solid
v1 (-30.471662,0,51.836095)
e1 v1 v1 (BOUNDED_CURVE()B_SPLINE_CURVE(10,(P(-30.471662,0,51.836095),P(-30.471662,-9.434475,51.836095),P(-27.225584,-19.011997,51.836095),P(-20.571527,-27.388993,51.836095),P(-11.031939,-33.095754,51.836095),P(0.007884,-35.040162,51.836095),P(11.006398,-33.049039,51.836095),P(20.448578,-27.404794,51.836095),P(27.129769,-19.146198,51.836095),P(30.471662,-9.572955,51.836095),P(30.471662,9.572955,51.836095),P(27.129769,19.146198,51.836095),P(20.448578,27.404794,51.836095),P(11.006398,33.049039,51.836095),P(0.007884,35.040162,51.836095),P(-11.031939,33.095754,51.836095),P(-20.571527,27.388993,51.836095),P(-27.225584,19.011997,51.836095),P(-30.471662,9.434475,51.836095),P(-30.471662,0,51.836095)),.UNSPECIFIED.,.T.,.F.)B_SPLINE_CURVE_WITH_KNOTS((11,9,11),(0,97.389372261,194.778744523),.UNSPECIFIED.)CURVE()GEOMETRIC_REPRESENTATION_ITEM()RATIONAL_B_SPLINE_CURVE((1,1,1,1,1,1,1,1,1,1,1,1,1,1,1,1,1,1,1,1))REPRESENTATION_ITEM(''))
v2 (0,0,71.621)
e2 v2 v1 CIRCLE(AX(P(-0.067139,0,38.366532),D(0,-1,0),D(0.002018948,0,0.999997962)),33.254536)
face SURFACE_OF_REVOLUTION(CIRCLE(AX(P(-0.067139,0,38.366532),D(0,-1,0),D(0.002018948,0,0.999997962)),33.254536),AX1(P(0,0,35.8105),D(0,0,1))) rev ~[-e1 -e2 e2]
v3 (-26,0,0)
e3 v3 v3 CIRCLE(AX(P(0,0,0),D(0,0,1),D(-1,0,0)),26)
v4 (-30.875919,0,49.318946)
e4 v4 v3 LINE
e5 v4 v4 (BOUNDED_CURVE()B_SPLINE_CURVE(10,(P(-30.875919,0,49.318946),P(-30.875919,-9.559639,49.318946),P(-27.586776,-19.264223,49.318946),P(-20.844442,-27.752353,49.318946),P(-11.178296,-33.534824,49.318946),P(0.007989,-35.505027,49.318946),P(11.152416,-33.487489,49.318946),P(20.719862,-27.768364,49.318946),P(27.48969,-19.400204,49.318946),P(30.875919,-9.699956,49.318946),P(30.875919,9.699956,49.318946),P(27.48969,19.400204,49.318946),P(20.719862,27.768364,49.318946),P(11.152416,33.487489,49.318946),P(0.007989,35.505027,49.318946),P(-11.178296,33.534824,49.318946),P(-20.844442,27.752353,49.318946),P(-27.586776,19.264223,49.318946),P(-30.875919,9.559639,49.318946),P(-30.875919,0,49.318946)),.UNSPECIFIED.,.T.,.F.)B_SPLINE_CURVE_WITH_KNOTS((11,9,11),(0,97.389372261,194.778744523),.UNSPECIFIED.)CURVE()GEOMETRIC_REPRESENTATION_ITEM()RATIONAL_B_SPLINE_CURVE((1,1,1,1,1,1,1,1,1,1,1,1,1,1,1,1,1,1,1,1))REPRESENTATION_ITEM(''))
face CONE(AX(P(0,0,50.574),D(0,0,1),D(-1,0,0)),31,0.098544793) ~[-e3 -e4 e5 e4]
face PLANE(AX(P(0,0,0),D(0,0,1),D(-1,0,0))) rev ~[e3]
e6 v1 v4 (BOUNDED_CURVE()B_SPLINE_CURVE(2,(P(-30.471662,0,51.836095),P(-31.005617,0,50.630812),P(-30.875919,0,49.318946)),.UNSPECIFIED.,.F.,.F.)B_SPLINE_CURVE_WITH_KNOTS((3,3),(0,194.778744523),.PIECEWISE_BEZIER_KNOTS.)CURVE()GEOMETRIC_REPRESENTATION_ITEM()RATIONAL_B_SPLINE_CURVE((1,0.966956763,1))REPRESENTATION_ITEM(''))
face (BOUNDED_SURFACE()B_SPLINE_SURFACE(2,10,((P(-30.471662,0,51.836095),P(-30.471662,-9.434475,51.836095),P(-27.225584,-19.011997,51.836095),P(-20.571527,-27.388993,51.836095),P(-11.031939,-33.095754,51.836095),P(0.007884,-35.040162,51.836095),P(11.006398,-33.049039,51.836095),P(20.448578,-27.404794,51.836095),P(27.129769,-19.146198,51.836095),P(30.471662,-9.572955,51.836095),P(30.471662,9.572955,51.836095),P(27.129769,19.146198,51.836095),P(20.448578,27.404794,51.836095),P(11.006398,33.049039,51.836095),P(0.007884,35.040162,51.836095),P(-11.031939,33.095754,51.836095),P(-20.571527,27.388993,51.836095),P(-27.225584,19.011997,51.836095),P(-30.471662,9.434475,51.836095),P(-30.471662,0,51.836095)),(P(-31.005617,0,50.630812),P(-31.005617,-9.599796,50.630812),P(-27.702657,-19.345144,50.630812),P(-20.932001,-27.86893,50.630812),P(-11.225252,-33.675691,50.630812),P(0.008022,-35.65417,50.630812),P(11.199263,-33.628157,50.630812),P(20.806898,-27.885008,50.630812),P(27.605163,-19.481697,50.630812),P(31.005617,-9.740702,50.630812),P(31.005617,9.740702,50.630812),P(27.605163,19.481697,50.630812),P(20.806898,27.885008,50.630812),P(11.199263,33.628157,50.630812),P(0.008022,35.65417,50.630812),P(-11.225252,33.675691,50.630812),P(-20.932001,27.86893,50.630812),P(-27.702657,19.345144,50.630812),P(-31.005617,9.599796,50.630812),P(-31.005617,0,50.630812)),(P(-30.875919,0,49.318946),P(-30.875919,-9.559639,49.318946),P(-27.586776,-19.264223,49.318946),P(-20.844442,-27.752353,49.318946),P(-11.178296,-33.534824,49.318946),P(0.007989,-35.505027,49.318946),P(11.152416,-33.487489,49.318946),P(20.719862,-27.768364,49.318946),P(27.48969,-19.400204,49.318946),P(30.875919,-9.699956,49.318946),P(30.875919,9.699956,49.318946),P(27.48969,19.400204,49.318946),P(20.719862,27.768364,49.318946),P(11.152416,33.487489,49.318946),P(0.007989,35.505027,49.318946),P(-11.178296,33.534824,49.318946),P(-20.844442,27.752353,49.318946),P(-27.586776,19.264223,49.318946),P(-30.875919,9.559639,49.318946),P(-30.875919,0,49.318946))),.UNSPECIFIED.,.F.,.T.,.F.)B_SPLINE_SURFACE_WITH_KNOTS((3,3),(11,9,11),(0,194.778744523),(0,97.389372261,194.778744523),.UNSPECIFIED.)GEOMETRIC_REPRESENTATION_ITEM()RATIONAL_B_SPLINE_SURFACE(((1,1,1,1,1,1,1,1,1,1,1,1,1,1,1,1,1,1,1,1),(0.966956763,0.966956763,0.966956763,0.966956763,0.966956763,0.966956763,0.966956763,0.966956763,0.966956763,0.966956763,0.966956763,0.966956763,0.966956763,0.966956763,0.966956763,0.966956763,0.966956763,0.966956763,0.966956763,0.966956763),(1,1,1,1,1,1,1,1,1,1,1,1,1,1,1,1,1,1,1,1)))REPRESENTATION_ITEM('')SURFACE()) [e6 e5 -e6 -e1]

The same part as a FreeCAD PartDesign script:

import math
import FreeCAD as App
import Part
import Sketcher

V = App.Vector


def edges_at(feature, points):
    """Names of the edges that pass closest to the given points."""
    edges = feature.Shape.Edges
    near = lambda p: min(range(len(edges)), key=lambda i: edges[i].distToShape(Part.Vertex(*p))[0])
    return sorted({f"Edge{near(p) + 1}" for p in points})

doc = App.newDocument("Part")
body = doc.addObject("PartDesign::Body", "Body")

# Sketch on XZ plane
sketch1 = body.newObject("Sketcher::SketchObject", "Sketch")
sketch1.AttachmentSupport = (doc.getObject("XZ_Plane"), [""])
sketch1.MapMode = "FlatFace"
sketch1.addGeometry([
    Part.ArcOfCircle(Part.Circle(V(0, 38, 0), V(0, 0, 1), 33), math.radians(90), math.radians(158)),
    Part.LineSegment(V(-31, 51, 0), V(-26, 0, 0)),
    Part.LineSegment(V(-26, 0, 0), V(0, 0, 0)),
    Part.LineSegment(V(0, 0, 0), V(0, 72, 0)),
], False)
sketch1.addConstraint([
    Sketcher.Constraint("Coincident", 0, 2, 1, 1),
    Sketcher.Constraint("Coincident", 1, 2, 2, 1),
    Sketcher.Constraint("Coincident", 2, 2, 3, 1),
    Sketcher.Constraint("Coincident", 3, 2, 0, 1),
    Sketcher.Constraint("Horizontal", 2),
    Sketcher.Constraint("Vertical", 3),
    Sketcher.Constraint("Coincident", 2, 2, -1, 1),
    Sketcher.Constraint("DistanceX", 2, 1, 2, 2, 26.0),
    Sketcher.Constraint("DistanceX", 0, 2, -1, 1, 31.0),
    Sketcher.Constraint("DistanceY", 3, 1, 3, 2, 71.621),
    Sketcher.Constraint("DistanceY", -1, 1, 0, 2, 50.574),
    Sketcher.Constraint("Radius", 0, 33.254536),
])
revolution = body.newObject("PartDesign::Revolution", "Revolution")
revolution.Profile = sketch1
revolution.ReferenceAxis = (sketch1, ["V_Axis"])
revolution.Angle = 360
doc.recompute()

fillet = body.newObject("PartDesign::Fillet", "Fillet")
fillet.Base = (revolution, edges_at(revolution, [(31, 0, 50.574)]))
fillet.Radius = 5

doc.recompute()
